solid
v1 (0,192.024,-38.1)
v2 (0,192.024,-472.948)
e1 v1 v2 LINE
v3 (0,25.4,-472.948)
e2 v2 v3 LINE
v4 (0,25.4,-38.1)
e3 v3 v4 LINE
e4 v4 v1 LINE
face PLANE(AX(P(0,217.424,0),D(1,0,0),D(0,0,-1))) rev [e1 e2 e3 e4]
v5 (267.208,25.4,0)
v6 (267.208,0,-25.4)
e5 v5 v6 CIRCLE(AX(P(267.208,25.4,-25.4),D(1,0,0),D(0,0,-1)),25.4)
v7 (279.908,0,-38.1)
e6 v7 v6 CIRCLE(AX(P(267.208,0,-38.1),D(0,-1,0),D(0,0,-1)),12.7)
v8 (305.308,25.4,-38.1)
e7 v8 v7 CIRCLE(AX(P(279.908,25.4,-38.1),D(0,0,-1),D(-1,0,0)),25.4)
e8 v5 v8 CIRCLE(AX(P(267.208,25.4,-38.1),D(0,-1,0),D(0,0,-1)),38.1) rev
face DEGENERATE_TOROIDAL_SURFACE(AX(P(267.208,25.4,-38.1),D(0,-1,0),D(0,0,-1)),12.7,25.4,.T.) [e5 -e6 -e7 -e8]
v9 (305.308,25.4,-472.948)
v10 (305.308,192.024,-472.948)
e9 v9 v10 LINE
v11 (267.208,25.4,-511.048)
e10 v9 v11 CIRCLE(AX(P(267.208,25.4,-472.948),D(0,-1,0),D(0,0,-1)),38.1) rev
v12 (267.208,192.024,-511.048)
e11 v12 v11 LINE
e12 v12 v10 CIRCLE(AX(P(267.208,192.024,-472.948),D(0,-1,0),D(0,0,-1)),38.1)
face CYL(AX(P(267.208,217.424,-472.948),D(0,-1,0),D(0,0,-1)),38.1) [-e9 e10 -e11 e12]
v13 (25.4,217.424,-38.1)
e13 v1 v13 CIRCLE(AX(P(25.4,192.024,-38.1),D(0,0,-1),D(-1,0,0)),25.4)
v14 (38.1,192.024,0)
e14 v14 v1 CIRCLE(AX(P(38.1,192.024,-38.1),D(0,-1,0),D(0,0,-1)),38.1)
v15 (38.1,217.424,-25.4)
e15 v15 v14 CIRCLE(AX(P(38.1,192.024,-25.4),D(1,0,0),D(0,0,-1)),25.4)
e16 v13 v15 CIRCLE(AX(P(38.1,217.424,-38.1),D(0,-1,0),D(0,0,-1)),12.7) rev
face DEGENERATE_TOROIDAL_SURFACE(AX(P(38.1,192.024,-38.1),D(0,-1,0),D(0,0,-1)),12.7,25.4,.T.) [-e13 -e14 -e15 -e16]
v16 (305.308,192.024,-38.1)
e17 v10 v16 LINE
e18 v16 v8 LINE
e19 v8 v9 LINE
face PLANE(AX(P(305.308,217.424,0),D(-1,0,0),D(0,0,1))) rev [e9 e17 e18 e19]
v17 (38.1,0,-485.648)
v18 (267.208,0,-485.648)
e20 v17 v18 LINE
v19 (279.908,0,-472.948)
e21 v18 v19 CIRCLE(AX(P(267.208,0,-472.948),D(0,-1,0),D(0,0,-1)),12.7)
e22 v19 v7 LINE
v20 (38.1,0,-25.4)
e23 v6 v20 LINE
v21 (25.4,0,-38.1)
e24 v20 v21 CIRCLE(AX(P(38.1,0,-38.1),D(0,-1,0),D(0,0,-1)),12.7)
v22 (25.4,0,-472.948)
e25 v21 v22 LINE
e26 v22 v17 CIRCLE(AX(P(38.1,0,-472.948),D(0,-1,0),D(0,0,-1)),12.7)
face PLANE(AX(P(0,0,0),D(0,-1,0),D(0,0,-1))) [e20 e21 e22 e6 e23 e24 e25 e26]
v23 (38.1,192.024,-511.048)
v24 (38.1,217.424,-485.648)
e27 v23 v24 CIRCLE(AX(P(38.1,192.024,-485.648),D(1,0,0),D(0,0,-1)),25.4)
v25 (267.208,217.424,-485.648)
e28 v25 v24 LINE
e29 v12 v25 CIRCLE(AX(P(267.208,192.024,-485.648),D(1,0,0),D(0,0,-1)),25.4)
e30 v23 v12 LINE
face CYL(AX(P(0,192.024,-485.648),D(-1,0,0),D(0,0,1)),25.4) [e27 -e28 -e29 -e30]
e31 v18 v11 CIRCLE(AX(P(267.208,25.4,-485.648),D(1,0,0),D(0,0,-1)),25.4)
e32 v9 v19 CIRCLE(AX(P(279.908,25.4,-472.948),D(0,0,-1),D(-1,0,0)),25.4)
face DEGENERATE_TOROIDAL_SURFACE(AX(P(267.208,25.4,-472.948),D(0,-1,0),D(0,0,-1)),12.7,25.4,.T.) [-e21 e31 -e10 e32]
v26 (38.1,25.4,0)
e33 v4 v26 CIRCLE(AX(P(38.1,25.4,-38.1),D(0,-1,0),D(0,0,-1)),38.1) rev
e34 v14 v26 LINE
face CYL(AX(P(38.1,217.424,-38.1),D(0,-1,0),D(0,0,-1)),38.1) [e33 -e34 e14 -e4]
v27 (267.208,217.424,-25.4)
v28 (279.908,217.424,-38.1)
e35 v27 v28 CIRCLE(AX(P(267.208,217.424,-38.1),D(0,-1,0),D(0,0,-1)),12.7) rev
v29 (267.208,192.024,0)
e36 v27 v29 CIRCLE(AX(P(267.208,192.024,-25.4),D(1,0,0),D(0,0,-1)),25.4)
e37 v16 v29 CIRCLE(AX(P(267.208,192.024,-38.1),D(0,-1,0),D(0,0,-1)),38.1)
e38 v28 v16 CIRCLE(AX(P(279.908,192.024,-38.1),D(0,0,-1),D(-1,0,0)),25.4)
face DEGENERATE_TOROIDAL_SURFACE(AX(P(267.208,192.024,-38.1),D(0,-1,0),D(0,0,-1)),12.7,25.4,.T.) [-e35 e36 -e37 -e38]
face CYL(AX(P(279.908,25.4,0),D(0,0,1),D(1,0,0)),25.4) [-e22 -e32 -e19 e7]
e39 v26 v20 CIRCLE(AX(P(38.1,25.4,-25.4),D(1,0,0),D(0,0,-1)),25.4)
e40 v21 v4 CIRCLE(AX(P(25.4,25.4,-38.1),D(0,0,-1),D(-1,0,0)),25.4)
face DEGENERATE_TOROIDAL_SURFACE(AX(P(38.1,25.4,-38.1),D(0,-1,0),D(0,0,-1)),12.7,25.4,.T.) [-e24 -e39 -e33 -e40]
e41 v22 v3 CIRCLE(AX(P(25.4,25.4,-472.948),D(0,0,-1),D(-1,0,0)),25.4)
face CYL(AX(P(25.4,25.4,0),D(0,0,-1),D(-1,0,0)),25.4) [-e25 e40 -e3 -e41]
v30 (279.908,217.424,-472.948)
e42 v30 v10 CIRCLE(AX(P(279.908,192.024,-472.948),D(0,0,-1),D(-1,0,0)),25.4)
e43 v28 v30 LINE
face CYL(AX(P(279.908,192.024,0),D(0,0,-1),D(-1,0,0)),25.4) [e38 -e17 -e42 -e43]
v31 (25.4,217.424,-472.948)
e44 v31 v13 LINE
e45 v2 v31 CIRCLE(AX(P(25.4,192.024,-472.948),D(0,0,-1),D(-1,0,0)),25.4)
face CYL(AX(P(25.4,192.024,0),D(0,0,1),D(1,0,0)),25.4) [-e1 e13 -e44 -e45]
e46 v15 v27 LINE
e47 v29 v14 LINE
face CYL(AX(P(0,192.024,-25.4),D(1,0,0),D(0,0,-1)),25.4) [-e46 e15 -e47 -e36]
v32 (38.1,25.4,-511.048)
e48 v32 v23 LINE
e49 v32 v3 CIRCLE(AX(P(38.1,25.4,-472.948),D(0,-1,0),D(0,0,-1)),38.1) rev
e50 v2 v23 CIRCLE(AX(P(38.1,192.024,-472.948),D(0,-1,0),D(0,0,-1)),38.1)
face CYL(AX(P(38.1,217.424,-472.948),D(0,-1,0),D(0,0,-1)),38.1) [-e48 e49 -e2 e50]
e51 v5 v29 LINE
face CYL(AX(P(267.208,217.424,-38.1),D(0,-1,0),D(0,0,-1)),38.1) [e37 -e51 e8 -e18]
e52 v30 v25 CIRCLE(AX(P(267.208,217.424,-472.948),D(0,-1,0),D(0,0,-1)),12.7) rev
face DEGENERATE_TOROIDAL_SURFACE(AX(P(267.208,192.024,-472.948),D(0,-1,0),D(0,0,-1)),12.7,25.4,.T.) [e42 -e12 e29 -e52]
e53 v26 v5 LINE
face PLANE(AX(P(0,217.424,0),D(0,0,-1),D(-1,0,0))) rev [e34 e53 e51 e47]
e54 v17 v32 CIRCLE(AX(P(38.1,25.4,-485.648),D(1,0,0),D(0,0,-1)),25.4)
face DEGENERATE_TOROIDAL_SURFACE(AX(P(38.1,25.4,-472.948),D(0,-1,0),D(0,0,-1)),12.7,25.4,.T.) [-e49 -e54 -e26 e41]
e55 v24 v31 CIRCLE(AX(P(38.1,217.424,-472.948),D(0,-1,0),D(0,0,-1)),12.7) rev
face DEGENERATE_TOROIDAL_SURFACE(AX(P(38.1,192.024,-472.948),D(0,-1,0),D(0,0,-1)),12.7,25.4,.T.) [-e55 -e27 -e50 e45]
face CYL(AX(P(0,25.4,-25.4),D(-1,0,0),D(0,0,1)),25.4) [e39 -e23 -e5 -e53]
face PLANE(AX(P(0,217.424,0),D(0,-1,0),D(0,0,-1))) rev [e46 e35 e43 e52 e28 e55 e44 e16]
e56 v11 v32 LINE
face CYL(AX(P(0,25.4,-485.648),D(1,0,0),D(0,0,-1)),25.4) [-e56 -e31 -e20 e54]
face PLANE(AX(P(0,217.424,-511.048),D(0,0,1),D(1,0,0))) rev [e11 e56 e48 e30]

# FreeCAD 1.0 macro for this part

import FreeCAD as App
import Part
import Sketcher
Q = App.Units.Quantity


def edges_at(feature, points):
    """Names of the edges that pass closest to the given points."""
    edges = feature.Shape.Edges
    near = lambda p: min(range(len(edges)), key=lambda i: edges[i].distToShape(Part.Vertex(*p))[0])
    return sorted({f"Edge{near(p) + 1}" for p in points})

doc = App.newDocument("Part")
body = doc.addObject("PartDesign::Body", "Body")

# Sketch on XZ plane
sketch1 = body.newObject("Sketcher::SketchObject", "Sketch")
sketch1.AttachmentSupport = (doc.getObject("XZ_Plane"), [""])
sketch1.MapMode = "FlatFace"
sketch1.addGeometry([
    Part.LineSegment(App.Vector(0, -511, 0), App.Vector(0, 0, 0)),
    Part.LineSegment(App.Vector(0, 0, 0), App.Vector(305, 0, 0)),
    Part.LineSegment(App.Vector(305, 0, 0), App.Vector(305, -511, 0)),
    Part.LineSegment(App.Vector(305, -511, 0), App.Vector(0, -511, 0)),
], False)
sketch1.addConstraint([
    Sketcher.Constraint("Coincident", 0, 2, 1, 1),
    Sketcher.Constraint("Coincident", 1, 2, 2, 1),
    Sketcher.Constraint("Coincident", 2, 2, 3, 1),
    Sketcher.Constraint("Coincident", 3, 2, 0, 1),
    Sketcher.Constraint("Vertical", 0),
    Sketcher.Constraint("Horizontal", 1),
    Sketcher.Constraint("Vertical", 2),
    Sketcher.Constraint("Horizontal", 3),
    Sketcher.Constraint("Coincident", 0, 2, -1, 1),
    Sketcher.Constraint("DistanceX", 1, 1, 1, 2, Q("12.02 in")),
    Sketcher.Constraint("DistanceY", 0, 1, 0, 2, Q("20.12 in")),
])
pad1 = body.newObject("PartDesign::Pad", "Pad")
pad1.Profile = sketch1
pad1.Length = Q("8.56 in")
pad1.Reversed = True
doc.recompute()

fillet = body.newObject("PartDesign::Fillet", "Fillet")
fillet.Base = (pad1, edges_at(pad1, [
    (0, 108.712, -511.048),
    (305.308, 108.712, -511.048),
    (305.308, 108.712, 0),
    (0, 108.712, 0),
]))
fillet.Radius = Q("1.5 in")
doc.recompute()

fillet2 = body.newObject("PartDesign::Fillet", "Fillet001")
fillet2.Base = (fillet, edges_at(fillet, [
    (152.654, 0, -511.048),
    (152.654, 217.424, -511.048),
    (0, 0, -255.524),
    (305.308, 0, -255.524),
    (152.654, 0, 0),
    (11.159, 0, -11.159),
    (294.149, 0, -11.159),
    (11.159, 0, -499.889),
    (294.149, 0, -499.889),
    (305.308, 217.424, -255.524),
    (0, 217.424, -255.524),
    (152.654, 217.424, 0),
    (11.159, 217.424, -11.159),
    (294.149, 217.424, -11.159),
    (11.159, 217.424, -499.889),
    (294.149, 217.424, -499.889),
]))
fillet2.Radius = Q("1 in")

doc.recompute()
